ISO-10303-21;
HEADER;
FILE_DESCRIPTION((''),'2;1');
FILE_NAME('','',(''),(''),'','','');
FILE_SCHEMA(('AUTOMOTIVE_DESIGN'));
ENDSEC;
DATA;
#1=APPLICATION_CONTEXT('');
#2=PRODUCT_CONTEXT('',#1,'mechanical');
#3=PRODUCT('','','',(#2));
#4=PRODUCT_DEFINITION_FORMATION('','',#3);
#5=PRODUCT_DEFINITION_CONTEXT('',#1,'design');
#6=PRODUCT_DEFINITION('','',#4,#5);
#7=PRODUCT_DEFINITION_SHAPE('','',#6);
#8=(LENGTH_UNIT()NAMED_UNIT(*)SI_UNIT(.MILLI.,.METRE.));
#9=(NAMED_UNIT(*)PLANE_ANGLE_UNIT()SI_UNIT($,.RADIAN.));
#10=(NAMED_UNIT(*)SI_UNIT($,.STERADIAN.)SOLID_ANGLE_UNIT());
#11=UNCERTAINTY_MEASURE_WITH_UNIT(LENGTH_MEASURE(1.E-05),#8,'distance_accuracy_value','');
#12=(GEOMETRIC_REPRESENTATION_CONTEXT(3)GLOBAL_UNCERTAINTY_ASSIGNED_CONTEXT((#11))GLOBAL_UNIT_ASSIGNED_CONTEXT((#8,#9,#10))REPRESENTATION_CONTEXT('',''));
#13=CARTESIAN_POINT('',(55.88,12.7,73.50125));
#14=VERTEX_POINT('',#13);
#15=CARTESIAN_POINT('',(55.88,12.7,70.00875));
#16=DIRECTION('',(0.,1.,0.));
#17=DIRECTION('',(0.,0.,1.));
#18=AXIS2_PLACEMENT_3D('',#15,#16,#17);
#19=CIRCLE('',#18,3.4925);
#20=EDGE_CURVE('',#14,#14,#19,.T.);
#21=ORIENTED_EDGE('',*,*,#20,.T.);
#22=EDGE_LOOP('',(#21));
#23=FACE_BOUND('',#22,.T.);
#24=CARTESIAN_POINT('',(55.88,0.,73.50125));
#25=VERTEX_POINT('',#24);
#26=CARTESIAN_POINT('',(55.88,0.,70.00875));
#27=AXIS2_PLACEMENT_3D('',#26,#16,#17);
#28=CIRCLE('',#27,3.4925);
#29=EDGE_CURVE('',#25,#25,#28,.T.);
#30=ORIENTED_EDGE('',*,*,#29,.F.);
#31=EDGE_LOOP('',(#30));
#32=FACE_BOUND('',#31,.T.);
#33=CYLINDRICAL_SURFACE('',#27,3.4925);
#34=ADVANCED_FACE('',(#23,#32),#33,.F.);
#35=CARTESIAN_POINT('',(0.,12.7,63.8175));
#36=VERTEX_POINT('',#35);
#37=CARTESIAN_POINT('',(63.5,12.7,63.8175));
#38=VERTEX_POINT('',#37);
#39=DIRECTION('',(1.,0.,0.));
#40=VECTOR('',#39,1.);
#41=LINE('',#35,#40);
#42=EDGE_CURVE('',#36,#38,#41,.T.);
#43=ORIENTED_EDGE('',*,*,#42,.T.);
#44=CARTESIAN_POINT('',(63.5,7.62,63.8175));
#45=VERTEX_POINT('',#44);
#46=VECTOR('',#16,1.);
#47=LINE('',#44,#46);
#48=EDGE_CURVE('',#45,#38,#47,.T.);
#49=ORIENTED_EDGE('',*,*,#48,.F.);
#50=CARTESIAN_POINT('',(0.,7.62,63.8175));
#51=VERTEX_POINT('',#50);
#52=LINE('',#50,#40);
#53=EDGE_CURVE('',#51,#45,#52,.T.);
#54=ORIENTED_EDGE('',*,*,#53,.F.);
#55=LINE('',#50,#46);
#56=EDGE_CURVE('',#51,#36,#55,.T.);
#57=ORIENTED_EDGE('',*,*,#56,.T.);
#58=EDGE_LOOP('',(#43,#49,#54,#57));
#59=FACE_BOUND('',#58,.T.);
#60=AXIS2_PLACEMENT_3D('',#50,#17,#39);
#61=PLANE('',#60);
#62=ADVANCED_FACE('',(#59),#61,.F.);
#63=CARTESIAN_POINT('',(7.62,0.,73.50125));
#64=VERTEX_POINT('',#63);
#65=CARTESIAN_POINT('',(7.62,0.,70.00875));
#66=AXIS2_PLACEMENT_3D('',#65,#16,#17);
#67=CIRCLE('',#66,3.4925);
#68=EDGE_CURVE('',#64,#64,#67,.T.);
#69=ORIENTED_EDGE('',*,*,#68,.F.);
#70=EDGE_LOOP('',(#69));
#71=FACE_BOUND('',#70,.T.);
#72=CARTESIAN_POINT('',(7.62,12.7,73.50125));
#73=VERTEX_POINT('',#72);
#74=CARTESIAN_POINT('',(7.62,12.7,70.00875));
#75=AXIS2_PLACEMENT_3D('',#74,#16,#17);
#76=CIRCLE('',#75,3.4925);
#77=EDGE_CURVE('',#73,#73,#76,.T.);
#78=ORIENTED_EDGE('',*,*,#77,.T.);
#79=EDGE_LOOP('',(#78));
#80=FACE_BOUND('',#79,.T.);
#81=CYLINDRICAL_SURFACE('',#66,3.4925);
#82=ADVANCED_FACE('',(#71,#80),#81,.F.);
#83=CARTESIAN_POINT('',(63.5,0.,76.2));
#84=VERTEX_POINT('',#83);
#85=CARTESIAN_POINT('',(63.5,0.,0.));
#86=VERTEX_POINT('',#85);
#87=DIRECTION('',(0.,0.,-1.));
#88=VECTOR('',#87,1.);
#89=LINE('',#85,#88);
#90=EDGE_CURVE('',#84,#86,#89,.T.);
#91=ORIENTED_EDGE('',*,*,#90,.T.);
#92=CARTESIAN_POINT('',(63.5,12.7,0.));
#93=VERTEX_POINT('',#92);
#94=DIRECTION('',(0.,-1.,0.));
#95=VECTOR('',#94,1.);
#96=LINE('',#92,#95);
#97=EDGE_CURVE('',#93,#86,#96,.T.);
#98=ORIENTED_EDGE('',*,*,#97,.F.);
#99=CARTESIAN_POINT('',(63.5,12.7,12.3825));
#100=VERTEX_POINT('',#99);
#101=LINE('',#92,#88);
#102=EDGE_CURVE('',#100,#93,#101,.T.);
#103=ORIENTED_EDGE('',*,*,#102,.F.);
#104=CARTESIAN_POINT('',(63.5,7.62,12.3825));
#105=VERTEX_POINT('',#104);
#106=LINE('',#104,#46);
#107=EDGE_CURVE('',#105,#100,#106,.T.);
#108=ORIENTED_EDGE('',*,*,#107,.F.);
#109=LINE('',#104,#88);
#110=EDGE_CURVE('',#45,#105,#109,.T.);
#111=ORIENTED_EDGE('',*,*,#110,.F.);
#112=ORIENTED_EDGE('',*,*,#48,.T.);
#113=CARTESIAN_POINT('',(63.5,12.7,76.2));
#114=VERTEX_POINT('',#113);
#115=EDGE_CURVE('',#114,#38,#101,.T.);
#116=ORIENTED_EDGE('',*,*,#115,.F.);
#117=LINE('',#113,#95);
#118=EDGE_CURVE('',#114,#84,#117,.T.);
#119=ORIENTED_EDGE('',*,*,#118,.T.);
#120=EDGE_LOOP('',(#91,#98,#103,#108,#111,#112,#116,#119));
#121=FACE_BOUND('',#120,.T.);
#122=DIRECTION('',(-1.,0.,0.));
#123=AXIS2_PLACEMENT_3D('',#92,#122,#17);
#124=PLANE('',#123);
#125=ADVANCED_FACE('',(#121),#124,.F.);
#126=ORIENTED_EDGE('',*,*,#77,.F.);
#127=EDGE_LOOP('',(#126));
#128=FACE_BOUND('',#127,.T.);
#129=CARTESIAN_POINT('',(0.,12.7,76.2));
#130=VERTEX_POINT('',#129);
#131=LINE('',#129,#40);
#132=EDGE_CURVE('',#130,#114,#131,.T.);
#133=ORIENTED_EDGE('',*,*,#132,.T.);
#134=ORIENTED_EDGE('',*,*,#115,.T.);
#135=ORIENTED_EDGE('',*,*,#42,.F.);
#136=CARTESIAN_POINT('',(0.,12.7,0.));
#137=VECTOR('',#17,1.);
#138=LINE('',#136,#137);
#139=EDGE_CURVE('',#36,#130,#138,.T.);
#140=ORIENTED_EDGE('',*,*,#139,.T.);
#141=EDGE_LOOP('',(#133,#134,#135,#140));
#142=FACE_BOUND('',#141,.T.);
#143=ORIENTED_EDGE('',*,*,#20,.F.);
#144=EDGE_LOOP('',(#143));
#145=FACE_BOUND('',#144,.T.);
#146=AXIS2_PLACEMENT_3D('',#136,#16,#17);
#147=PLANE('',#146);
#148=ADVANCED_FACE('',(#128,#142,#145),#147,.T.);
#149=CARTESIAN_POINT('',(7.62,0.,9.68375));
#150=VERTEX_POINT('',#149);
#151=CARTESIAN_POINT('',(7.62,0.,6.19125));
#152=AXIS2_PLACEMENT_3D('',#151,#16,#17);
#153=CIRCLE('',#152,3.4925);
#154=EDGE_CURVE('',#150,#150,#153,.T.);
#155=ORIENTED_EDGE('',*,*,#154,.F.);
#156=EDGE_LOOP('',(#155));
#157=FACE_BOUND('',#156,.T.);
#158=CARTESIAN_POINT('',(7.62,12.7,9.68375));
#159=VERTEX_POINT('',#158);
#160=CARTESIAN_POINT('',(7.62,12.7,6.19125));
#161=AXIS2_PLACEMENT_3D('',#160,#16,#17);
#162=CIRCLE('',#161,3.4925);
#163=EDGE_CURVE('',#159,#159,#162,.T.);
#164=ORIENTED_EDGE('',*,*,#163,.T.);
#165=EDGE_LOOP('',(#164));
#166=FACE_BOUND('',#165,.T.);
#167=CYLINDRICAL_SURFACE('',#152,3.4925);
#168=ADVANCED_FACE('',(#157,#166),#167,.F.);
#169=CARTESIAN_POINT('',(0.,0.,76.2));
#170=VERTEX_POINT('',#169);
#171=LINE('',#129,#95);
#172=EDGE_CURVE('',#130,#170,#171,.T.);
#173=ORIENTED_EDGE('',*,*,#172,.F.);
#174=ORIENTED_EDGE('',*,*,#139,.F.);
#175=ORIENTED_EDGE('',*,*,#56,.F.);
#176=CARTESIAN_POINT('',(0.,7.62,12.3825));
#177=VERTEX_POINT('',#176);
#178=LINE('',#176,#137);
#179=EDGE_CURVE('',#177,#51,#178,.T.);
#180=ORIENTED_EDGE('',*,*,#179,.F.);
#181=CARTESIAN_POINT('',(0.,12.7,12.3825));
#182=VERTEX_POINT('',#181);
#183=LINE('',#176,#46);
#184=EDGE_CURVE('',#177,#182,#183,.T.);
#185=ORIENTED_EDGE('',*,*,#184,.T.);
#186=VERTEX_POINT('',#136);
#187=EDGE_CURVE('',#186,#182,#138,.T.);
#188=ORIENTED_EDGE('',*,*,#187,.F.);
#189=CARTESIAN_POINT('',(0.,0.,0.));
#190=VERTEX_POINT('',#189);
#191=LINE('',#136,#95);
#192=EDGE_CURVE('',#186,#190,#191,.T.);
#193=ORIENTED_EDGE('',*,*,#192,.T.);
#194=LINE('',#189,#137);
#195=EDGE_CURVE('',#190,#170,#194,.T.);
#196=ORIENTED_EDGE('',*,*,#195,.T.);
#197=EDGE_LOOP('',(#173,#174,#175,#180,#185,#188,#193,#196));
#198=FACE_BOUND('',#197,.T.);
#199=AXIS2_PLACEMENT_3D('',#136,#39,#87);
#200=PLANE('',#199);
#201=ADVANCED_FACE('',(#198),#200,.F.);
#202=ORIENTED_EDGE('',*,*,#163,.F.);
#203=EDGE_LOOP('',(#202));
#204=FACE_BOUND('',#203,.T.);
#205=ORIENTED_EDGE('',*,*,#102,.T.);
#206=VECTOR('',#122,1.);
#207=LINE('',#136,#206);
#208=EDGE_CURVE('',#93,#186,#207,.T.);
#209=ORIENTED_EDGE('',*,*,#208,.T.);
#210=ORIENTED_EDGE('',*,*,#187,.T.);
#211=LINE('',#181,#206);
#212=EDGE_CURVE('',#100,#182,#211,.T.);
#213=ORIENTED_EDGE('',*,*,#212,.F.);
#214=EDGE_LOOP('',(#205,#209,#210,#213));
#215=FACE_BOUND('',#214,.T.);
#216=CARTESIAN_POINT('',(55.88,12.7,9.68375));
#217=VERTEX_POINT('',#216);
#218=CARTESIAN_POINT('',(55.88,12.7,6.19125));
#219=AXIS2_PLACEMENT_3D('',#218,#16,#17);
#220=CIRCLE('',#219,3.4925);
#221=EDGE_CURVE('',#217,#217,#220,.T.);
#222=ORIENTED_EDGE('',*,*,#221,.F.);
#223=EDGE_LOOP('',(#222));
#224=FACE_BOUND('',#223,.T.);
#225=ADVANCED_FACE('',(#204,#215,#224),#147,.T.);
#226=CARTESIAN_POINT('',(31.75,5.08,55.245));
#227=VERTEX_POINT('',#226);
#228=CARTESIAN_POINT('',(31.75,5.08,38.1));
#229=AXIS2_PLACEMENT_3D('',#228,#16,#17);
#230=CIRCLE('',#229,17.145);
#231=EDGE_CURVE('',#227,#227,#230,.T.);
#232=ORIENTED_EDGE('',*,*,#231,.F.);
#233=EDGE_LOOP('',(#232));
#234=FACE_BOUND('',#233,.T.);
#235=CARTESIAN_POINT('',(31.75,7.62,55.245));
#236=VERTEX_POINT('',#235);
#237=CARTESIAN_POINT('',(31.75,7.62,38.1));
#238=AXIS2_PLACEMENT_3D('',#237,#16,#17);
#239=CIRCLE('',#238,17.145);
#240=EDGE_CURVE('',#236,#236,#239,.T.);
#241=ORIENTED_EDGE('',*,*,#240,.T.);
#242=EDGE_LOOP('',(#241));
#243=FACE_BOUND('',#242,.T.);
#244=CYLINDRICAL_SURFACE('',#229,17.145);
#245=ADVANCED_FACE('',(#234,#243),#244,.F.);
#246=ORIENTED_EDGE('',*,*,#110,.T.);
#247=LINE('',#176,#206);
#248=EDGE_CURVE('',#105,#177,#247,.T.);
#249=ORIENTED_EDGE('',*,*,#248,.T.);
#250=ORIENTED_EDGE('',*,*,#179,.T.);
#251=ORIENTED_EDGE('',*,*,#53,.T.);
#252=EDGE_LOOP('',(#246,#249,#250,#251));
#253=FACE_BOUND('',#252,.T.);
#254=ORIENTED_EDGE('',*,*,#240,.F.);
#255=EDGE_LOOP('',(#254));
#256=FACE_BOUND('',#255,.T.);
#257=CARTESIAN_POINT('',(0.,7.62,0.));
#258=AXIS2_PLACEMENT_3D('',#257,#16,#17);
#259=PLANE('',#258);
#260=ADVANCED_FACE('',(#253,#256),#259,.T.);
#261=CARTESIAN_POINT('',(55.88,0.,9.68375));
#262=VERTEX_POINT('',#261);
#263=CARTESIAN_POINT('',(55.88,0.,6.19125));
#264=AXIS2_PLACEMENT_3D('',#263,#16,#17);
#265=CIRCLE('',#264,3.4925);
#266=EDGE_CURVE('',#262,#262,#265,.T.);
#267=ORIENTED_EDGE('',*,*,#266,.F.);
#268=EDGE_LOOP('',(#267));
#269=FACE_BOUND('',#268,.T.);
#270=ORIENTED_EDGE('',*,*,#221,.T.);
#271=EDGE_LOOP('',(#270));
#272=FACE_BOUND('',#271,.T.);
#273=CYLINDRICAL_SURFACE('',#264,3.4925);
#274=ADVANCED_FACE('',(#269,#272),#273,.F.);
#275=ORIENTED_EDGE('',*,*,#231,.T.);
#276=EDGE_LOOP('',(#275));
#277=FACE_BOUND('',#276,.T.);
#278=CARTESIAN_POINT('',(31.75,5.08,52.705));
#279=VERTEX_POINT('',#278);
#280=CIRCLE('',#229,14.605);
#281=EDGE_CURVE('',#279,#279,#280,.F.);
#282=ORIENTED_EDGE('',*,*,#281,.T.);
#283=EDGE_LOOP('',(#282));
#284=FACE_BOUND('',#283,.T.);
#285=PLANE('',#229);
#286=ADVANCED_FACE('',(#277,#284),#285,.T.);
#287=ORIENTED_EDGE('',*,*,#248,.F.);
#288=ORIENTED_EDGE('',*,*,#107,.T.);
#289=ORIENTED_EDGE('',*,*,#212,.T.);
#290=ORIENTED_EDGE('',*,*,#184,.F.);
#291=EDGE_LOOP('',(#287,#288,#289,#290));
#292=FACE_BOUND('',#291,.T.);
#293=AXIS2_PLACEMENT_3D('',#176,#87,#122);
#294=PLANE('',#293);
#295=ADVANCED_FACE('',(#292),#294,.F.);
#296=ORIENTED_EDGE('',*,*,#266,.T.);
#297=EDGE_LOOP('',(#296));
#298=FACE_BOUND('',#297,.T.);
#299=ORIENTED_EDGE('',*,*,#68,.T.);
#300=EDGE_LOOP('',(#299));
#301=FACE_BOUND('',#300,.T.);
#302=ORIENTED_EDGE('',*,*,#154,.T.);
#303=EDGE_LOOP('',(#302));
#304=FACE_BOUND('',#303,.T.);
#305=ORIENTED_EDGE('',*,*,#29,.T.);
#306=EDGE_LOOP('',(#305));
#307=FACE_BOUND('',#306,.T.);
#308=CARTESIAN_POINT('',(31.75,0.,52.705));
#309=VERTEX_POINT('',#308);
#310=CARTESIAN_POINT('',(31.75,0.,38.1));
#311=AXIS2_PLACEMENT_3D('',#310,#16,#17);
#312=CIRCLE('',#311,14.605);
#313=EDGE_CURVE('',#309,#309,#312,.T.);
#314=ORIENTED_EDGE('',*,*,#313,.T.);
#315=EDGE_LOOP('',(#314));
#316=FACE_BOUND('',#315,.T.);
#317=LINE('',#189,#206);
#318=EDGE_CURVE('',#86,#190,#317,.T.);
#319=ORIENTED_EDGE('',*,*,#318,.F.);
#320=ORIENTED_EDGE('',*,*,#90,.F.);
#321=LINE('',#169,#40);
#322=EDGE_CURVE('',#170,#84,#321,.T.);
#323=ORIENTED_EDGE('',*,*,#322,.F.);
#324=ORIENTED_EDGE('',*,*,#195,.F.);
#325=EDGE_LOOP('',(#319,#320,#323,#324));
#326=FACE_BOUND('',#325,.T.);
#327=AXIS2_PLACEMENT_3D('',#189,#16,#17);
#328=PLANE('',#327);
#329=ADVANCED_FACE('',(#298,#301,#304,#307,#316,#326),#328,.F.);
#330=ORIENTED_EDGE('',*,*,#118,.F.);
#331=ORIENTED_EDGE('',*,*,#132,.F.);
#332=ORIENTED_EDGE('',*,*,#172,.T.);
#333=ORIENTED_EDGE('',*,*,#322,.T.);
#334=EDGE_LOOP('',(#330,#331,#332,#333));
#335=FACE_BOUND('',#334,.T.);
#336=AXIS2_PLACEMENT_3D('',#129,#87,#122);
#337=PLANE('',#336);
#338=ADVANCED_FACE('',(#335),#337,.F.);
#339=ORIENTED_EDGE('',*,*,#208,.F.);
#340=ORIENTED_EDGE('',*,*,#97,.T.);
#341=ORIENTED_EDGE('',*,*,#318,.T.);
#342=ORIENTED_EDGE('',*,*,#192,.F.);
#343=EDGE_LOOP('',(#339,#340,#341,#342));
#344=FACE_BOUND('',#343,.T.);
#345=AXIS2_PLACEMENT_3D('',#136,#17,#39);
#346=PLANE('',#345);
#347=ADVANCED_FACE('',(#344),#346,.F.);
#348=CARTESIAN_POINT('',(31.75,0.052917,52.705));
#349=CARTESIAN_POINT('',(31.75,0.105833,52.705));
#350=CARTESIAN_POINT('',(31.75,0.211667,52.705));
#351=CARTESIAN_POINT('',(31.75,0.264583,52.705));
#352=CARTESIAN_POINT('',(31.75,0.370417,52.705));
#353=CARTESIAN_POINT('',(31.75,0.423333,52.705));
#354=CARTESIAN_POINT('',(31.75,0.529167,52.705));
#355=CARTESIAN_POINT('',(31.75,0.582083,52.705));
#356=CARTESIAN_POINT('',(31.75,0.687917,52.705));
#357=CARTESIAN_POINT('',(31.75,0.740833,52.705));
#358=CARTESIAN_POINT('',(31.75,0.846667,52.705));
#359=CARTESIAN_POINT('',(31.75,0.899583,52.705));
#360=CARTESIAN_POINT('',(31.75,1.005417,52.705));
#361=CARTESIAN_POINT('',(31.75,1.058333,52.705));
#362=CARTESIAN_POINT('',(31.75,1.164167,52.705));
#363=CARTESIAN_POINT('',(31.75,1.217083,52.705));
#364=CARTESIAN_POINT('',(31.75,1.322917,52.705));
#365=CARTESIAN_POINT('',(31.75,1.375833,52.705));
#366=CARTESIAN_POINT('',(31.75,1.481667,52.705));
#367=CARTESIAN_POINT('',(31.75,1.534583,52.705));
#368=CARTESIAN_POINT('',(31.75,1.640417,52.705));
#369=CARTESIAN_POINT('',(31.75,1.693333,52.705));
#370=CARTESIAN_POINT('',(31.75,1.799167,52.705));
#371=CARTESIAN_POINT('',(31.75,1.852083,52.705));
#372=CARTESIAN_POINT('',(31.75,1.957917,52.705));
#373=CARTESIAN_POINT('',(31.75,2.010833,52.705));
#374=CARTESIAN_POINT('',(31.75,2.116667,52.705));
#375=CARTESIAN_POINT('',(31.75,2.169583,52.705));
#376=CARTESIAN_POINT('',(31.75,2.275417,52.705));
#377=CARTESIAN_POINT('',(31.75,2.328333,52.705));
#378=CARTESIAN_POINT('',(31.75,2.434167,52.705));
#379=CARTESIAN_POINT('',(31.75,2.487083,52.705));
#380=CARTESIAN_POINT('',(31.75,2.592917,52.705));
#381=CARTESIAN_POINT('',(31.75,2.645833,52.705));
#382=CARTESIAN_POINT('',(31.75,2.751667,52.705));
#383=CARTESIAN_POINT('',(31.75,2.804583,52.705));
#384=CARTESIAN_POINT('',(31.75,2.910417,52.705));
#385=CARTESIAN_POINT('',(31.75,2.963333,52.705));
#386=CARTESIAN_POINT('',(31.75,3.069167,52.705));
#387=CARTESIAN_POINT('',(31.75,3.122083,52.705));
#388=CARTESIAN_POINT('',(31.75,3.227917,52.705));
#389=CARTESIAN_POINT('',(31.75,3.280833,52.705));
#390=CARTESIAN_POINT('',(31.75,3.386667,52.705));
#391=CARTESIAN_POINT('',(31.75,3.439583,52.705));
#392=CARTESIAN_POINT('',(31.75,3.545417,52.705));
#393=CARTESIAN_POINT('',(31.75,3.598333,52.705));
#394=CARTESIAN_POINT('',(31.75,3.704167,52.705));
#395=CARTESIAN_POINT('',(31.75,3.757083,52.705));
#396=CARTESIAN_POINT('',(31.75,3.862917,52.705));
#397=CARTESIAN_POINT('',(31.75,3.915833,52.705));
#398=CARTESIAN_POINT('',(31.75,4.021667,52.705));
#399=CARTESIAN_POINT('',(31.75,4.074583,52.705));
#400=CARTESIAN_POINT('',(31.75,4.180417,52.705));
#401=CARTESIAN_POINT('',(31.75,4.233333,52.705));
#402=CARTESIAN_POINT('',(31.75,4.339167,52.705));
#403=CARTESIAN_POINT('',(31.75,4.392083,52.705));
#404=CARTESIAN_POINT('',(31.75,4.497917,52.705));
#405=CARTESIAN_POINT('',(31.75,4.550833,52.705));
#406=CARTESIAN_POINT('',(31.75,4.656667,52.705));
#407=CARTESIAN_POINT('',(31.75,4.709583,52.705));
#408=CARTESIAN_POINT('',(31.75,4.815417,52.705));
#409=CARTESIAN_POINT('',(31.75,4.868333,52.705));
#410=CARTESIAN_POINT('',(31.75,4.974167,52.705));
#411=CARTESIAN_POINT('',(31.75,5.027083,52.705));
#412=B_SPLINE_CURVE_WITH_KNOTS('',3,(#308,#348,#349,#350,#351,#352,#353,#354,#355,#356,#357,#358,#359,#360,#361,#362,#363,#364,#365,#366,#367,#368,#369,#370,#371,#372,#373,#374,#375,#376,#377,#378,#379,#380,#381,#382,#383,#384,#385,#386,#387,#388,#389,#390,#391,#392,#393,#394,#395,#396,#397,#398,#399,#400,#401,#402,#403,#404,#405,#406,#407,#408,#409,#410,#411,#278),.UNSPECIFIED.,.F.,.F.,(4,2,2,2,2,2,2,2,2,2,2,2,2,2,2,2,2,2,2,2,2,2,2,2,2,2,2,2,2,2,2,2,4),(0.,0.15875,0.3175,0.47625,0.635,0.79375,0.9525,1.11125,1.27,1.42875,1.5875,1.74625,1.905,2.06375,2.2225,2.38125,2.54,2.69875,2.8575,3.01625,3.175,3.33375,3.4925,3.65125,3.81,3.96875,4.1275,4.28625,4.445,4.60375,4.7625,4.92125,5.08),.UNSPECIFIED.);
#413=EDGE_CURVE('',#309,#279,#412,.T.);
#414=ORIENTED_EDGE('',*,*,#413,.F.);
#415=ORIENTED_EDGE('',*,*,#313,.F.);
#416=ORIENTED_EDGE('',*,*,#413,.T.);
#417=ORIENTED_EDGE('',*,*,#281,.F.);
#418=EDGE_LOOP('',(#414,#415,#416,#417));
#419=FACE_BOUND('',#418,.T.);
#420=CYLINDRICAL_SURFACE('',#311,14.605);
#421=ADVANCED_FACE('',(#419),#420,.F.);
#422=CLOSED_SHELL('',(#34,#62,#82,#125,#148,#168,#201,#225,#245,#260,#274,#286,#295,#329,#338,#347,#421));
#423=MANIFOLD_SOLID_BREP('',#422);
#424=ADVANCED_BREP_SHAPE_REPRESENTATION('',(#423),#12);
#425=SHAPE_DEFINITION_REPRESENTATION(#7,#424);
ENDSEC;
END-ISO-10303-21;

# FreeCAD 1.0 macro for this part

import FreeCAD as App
import Part
import Sketcher

V = App.Vector
Q = App.Units.Quantity

doc = App.newDocument("Part")
body = doc.addObject("PartDesign::Body", "Body")

sketch1 = doc.addObject("Sketcher::SketchObject", "Sketch")
body.addObject(sketch1)
sketch1.AttachmentSupport = (doc.XZ_Plane, [""])
sketch1.MapMode = "FlatFace"
sketch1.addGeometry([
    Part.LineSegment(V(0, 0, 0), V(0, 76, 0)),
    Part.LineSegment(V(0, 76, 0), V(64, 76, 0)),
    Part.LineSegment(V(64, 76, 0), V(64, 0, 0)),
    Part.LineSegment(V(64, 0, 0), V(0, 0, 0)),
], False)
sketch1.addConstraint([
    Sketcher.Constraint("Coincident", 0, 2, 1, 1),
    Sketcher.Constraint("Coincident", 1, 2, 2, 1),
    Sketcher.Constraint("Coincident", 2, 2, 3, 1),
    Sketcher.Constraint("Coincident", 3, 2, 0, 1),
    Sketcher.Constraint("Vertical", 0),
    Sketcher.Constraint("Horizontal", 1),
    Sketcher.Constraint("Vertical", 2),
    Sketcher.Constraint("Horizontal", 3),
    Sketcher.Constraint("Coincident", 3, 2, -1, 1),
    Sketcher.Constraint("DistanceY", 0, 1, 0, 2, Q("3 in")),
    Sketcher.Constraint("DistanceX", 1, 1, 1, 2, Q("2.5 in")),
])
pad1 = doc.addObject("PartDesign::Pad", "Pad")
body.addObject(pad1)
pad1.Profile = sketch1
pad1.Length = Q("0.5 in")
pad1.Reversed = True

sketch2 = doc.addObject("Sketcher::SketchObject", "Sketch001")
body.addObject(sketch2)
sketch2.AttachmentSupport = (doc.XZ_Plane, [""])
sketch2.MapMode = "FlatFace"
sketch2.AttachmentOffset = App.Placement(V(0, 0, -0.5 * 25.4), App.Rotation())
sketch2.addGeometry([
    Part.LineSegment(V(0, 12, 0), V(0, 64, 0)),
    Part.LineSegment(V(0, 64, 0), V(64, 64, 0)),
    Part.LineSegment(V(64, 64, 0), V(64, 12, 0)),
    Part.LineSegment(V(64, 12, 0), V(0, 12, 0)),
], False)
sketch2.addConstraint([
    Sketcher.Constraint("Coincident", 0, 2, 1, 1),
    Sketcher.Constraint("Coincident", 1, 2, 2, 1),
    Sketcher.Constraint("Coincident", 2, 2, 3, 1),
    Sketcher.Constraint("Coincident", 3, 2, 0, 1),
    Sketcher.Constraint("Vertical", 0),
    Sketcher.Constraint("Horizontal", 1),
    Sketcher.Constraint("Vertical", 2),
    Sketcher.Constraint("Horizontal", 3),
    Sketcher.Constraint("PointOnObject", 0, 2, -2),
    Sketcher.Constraint("DistanceX", 1, 1, 1, 2, Q("2.5 in")),
    Sketcher.Constraint("DistanceY", 0, 1, 0, 2, Q("2.025 in")),
    Sketcher.Constraint("DistanceY", -1, 1, 0, 2, Q("2.5125 in")),
])
pocket1 = doc.addObject("PartDesign::Pocket", "Pocket")
body.addObject(pocket1)
pocket1.Profile = sketch2
pocket1.Length = Q("0.2 in")
pocket1.Reversed = True

sketch3 = doc.addObject("Sketcher::SketchObject", "Sketch002")
body.addObject(sketch3)
sketch3.AttachmentSupport = (doc.XZ_Plane, [""])
sketch3.MapMode = "FlatFace"
sketch3.AttachmentOffset = App.Placement(V(0, 0, -0.3 * 25.4), App.Rotation())
sketch3.addGeometry(Part.Circle(V(32, 38, 0), V(0, 0, 1), 15), False)
sketch3.addConstraint([
    Sketcher.Constraint("Diameter", 0, Q("1.15 in")),
    Sketcher.Constraint("DistanceY", -1, 1, 0, 3, Q("1.5 in")),
    Sketcher.Constraint("DistanceX", -1, 1, 0, 3, Q("1.25 in")),
])
pocket2 = doc.addObject("PartDesign::Pocket", "Pocket001")
body.addObject(pocket2)
pocket2.Profile = sketch3
pocket2.Length = Q("0.3 in")
pocket2.Reversed = True

sketch4 = doc.addObject("Sketcher::SketchObject", "Sketch003")
body.addObject(sketch4)
sketch4.AttachmentSupport = (doc.XZ_Plane, [""])
sketch4.MapMode = "FlatFace"
sketch4.AttachmentOffset = App.Placement(V(0, 0, -0.5 * 25.4), App.Rotation())
sketch4.addGeometry([
    Part.Circle(V(7.6, 6.2, 0), V(0, 0, 1), 3.5),
    Part.Circle(V(55.9, 6.2, 0), V(0, 0, 1), 3.5),
    Part.Circle(V(7.6, 70, 0), V(0, 0, 1), 3.5),
    Part.Circle(V(55.9, 70, 0), V(0, 0, 1), 3.5),
], False)
sketch4.addConstraint([
    Sketcher.Constraint("Equal", 0, 1),
    Sketcher.Constraint("Equal", 1, 2),
    Sketcher.Constraint("Equal", 2, 3),
    Sketcher.Constraint("Horizontal", 0, 3, 1, 3),
    Sketcher.Constraint("Horizontal", 2, 3, 3, 3),
    Sketcher.Constraint("Vertical", 0, 3, 2, 3),
    Sketcher.Constraint("Vertical", 1, 3, 3, 3),
    Sketcher.Constraint("Diameter", 0, Q("0.275 in")),
    Sketcher.Constraint("DistanceX", -1, 1, 0, 3, Q("0.3 in")),
    Sketcher.Constraint("DistanceX", -1, 1, 1, 3, Q("2.2 in")),
    Sketcher.Constraint("DistanceY", 0, 3, 2, 3, Q("2.5125 in")),
    Sketcher.Constraint("DistanceY", -1, 1, 0, 3, 6.19125),
])
pocket3 = doc.addObject("PartDesign::Pocket", "Pocket002")
body.addObject(pocket3)
pocket3.Profile = sketch4
pocket3.Length = Q("0.5 in")
pocket3.Reversed = True

sketch5 = doc.addObject("Sketcher::SketchObject", "Sketch004")
body.addObject(sketch5)
sketch5.AttachmentSupport = (doc.XZ_Plane, [""])
sketch5.MapMode = "FlatFace"
sketch5.AttachmentOffset = App.Placement(V(0, 0, -0.3 * 25.4), App.Rotation())
sketch5.addGeometry(Part.Circle(V(32, 38, 0), V(0, 0, 1), 17), False)
sketch5.addConstraint([
    Sketcher.Constraint("Diameter", 0, Q("1.35 in")),
    Sketcher.Constraint("DistanceY", -1, 1, 0, 3, Q("1.5 in")),
    Sketcher.Constraint("DistanceX", -1, 1, 0, 3, Q("1.25 in")),
])
pocket4 = doc.addObject("PartDesign::Pocket", "Pocket003")
body.addObject(pocket4)
pocket4.Profile = sketch5
pocket4.Length = Q("0.1 in")
pocket4.Reversed = True

doc.recompute()
